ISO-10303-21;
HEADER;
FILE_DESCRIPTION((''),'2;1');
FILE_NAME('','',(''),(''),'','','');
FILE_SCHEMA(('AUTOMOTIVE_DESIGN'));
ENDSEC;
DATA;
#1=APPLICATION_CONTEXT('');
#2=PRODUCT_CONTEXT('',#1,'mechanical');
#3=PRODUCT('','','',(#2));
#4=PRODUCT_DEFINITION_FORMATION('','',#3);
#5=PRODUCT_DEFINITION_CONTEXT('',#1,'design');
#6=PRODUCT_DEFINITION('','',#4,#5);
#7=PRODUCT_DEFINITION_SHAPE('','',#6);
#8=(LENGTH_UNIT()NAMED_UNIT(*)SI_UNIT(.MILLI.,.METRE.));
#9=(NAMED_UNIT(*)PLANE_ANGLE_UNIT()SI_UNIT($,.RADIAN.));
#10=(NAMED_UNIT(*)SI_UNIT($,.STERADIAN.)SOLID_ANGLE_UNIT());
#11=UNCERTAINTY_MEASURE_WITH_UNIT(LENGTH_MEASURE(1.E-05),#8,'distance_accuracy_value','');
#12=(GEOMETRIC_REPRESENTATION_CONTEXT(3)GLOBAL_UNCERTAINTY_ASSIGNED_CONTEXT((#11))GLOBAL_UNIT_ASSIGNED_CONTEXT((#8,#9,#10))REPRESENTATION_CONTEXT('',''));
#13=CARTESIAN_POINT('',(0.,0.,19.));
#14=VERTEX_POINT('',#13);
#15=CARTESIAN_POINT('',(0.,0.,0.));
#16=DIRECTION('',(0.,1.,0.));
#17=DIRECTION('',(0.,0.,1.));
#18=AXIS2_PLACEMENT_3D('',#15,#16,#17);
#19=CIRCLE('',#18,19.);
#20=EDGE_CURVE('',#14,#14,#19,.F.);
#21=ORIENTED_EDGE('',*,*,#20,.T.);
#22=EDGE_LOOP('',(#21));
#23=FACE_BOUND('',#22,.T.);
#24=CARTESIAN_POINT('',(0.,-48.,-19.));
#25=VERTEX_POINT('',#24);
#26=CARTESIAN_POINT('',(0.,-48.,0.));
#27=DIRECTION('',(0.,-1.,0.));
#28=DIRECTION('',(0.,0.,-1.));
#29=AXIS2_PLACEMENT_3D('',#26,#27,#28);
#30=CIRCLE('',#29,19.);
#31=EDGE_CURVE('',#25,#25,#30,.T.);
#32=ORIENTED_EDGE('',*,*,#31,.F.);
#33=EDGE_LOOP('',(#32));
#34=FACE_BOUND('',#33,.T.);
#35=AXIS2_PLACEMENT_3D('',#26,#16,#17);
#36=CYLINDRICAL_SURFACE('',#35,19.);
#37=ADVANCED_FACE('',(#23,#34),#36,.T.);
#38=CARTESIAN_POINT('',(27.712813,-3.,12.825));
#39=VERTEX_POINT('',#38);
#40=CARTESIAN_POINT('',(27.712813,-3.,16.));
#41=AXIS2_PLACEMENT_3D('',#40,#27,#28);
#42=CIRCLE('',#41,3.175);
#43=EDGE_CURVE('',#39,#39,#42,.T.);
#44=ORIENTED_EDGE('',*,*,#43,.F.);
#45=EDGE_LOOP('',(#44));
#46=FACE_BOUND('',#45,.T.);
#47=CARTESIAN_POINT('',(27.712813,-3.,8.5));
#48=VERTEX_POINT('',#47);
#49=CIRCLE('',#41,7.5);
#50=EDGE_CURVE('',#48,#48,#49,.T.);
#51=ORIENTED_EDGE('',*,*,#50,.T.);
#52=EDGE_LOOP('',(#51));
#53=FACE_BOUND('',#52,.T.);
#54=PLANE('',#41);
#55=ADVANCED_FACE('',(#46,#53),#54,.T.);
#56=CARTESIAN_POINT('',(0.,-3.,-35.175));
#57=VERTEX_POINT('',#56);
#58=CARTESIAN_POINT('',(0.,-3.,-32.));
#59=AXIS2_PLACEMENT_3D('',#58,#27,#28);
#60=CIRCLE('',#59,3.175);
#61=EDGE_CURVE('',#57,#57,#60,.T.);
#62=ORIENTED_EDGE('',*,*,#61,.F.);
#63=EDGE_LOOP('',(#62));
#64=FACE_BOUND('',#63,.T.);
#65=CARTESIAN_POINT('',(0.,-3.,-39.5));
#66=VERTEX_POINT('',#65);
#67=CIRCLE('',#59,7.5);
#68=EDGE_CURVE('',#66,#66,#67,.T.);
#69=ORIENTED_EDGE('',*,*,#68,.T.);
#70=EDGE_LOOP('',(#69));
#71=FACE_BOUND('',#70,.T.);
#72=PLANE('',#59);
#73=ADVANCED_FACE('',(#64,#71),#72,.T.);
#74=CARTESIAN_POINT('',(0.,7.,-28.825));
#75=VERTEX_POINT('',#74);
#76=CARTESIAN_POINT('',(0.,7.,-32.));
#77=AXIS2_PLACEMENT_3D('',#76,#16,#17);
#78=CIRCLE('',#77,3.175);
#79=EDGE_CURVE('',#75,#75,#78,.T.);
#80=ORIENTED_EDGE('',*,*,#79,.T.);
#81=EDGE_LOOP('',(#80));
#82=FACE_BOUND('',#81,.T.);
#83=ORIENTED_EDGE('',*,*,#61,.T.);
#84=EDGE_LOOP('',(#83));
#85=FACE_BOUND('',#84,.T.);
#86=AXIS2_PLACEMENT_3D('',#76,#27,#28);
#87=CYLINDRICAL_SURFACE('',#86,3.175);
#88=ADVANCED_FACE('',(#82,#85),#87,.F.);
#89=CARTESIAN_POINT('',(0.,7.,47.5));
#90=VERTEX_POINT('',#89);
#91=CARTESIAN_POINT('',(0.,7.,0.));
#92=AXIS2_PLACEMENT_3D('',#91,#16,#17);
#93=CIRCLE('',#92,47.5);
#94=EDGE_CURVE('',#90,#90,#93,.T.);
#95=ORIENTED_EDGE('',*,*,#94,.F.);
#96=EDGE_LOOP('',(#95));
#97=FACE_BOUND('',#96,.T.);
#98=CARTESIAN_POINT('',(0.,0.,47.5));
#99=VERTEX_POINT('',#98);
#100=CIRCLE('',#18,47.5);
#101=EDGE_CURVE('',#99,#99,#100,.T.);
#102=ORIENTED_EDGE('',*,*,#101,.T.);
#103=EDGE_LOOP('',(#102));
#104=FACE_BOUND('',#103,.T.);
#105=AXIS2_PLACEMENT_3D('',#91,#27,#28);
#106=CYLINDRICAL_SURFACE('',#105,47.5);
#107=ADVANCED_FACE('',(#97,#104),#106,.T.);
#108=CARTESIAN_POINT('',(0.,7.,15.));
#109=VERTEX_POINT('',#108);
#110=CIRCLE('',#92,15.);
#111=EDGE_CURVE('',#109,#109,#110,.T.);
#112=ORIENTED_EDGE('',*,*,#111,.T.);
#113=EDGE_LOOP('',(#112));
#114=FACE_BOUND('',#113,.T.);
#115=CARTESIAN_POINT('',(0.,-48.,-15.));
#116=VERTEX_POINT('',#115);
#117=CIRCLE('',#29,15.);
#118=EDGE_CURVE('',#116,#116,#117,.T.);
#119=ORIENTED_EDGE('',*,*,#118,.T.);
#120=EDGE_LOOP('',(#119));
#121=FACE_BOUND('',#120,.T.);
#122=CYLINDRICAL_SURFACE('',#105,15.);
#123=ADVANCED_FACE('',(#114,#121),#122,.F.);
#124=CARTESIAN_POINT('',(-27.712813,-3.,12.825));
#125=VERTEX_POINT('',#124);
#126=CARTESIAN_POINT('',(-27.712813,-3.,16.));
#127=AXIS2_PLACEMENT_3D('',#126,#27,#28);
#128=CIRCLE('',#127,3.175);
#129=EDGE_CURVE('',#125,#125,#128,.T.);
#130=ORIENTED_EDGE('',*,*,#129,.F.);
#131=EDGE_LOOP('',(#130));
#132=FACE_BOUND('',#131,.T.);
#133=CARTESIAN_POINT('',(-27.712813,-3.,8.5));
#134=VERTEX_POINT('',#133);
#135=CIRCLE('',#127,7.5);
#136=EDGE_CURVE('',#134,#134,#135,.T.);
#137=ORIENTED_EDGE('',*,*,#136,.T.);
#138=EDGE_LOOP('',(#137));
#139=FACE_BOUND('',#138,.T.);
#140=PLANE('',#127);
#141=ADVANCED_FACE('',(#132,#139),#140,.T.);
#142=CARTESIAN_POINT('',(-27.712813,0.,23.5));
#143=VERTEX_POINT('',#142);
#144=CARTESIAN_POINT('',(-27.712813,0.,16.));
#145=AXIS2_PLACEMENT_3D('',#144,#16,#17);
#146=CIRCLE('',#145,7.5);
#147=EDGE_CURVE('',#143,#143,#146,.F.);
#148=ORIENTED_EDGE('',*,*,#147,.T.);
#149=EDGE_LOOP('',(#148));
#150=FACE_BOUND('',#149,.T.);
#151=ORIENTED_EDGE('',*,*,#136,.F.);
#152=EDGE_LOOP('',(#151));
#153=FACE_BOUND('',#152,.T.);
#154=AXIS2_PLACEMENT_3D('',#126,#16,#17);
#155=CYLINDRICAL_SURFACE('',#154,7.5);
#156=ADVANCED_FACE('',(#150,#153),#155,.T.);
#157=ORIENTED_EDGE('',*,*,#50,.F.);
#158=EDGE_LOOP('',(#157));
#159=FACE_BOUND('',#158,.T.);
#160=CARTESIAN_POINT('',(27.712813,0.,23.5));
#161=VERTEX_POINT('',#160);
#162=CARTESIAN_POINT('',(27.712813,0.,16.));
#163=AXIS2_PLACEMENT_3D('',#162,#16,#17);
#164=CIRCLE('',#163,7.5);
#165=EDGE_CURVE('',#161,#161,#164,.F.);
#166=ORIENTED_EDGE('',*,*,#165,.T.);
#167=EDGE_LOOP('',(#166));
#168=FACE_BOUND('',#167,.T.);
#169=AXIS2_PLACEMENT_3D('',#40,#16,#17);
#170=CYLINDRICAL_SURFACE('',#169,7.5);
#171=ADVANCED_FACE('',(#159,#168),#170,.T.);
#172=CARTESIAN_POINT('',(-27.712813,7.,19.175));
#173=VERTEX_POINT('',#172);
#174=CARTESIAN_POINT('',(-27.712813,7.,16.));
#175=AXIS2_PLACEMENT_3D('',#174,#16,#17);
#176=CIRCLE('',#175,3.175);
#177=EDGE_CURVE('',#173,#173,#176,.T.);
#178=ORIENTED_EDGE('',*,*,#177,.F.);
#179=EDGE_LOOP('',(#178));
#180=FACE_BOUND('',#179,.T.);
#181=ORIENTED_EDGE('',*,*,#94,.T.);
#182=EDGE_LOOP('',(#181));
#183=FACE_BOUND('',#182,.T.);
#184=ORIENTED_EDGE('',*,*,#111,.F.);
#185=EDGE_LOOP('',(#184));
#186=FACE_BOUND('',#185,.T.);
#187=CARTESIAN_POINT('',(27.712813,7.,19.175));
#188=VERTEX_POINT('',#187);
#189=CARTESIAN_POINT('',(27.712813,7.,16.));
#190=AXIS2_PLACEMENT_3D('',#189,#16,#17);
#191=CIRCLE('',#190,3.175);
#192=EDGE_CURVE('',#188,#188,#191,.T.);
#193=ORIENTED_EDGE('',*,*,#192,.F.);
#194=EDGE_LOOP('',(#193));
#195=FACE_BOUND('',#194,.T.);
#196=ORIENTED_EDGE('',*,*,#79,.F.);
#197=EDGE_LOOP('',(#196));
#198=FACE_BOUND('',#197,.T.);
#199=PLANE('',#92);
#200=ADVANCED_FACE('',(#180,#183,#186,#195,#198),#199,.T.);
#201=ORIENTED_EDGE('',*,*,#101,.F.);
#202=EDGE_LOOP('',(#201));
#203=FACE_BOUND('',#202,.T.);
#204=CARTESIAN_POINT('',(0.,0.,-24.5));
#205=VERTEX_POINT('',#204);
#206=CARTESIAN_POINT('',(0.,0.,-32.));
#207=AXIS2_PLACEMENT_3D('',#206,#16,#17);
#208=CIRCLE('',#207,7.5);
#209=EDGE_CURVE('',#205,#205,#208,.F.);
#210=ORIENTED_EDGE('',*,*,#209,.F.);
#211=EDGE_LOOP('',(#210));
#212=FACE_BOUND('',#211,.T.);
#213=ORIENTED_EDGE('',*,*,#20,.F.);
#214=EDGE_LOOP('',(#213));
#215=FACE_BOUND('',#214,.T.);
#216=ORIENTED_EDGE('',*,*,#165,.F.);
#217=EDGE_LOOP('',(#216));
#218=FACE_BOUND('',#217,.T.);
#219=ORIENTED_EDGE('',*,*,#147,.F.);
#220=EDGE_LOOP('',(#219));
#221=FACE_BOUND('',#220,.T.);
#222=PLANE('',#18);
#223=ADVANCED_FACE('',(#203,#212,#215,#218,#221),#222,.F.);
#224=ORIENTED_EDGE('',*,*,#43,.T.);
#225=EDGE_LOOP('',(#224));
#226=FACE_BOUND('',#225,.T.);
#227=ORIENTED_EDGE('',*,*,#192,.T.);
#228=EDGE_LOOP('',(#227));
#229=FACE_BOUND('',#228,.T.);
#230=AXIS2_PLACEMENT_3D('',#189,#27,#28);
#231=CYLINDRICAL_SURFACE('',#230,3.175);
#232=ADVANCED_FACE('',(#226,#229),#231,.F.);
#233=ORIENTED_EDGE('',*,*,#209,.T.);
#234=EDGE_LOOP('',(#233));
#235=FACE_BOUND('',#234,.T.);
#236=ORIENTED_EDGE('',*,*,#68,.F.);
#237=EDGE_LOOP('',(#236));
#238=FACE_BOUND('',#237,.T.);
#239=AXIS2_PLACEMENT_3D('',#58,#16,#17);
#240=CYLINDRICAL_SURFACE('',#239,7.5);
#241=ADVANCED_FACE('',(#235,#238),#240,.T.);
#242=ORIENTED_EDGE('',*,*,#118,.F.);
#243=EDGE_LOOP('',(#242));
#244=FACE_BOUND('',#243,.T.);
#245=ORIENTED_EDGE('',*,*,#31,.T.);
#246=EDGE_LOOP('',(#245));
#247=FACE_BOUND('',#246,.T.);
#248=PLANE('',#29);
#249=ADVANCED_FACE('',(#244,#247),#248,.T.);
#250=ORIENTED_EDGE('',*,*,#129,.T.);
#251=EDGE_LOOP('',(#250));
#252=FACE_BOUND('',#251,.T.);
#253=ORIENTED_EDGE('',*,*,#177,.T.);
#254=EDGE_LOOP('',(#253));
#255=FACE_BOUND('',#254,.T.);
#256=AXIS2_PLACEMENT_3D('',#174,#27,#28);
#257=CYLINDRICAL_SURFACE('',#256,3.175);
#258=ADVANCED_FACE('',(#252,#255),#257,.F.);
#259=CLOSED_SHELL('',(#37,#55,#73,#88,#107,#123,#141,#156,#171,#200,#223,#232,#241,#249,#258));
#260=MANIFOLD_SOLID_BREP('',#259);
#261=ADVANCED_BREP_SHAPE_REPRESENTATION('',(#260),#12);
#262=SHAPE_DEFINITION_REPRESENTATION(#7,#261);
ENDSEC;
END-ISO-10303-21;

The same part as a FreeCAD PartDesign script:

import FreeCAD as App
import Part
import Sketcher

V = App.Vector
Q = App.Units.Quantity

doc = App.newDocument("Part")
body = doc.addObject("PartDesign::Body", "Body")

# Sketch on XZ plane
sketch1 = body.newObject("Sketcher::SketchObject", "Sketch")
sketch1.AttachmentSupport = (doc.getObject("XZ_Plane"), [""])
sketch1.MapMode = "FlatFace"
sketch1.addGeometry(Part.Circle(V(0, 0, 0), V(0, 0, 1), 47.5), False)
sketch1.addGeometry(Part.Circle(V(0, -32, 0), V(0, 0, 1), 3.2), False)
sketch1.addGeometry(Part.Circle(V(-27.7, 16, 0), V(0, 0, 1), 3.2), False)
sketch1.addGeometry(Part.Circle(V(0, 0, 0), V(0, 0, 1), 15), False)
sketch1.addGeometry(Part.Circle(V(27.7, 16, 0), V(0, 0, 1), 3.2), False)
sketch1.addConstraint(Sketcher.Constraint("Coincident", 0, 3, -1, 1))
sketch1.addConstraint(Sketcher.Constraint("Coincident", 3, 3, -1, 1))
sketch1.addConstraint(Sketcher.Constraint("Equal", 1, 2))
sketch1.addConstraint(Sketcher.Constraint("Equal", 2, 4))
sketch1.addConstraint(Sketcher.Constraint("Symmetric", 2, 3, 4, 3, -2))
sketch1.addConstraint(Sketcher.Constraint("PointOnObject", 1, 3, -2))
sketch1.addConstraint(Sketcher.Constraint("Diameter", 0, Q("95 mm")))
sketch1.addConstraint(Sketcher.Constraint("Diameter", 3, Q("30 mm")))
sketch1.addConstraint(Sketcher.Constraint("Diameter", 1, Q("6.35 mm")))
sketch1.addConstraint(Sketcher.Constraint("DistanceY", 1, 3, -1, 1, Q("32 mm")))
sketch1.addConstraint(Sketcher.Constraint("DistanceY", -1, 1, 2, 3, Q("16 mm")))
sketch1.addConstraint(Sketcher.Constraint("DistanceX", 2, 3, -1, 1, Q("27.712813 mm")))
pad1 = body.newObject("PartDesign::Pad", "Pad")
pad1.Profile = sketch1
pad1.Length = 7
pad1.Reversed = True

# Sketch on XZ plane
sketch2 = body.newObject("Sketcher::SketchObject", "Sketch001")
sketch2.AttachmentSupport = (doc.getObject("XZ_Plane"), [""])
sketch2.MapMode = "FlatFace"
sketch2.AttachmentOffset = App.Placement(V(0, 0, 48), App.Rotation())
sketch2.addGeometry(Part.Circle(V(0, 0, 0), V(0, 0, 1), 19), False)
sketch2.addGeometry(Part.Circle(V(0, 0, 0), V(0, 0, 1), 15), False)
sketch2.addConstraint(Sketcher.Constraint("Coincident", 0, 3, -1, 1))
sketch2.addConstraint(Sketcher.Constraint("Coincident", 1, 3, -1, 1))
sketch2.addConstraint(Sketcher.Constraint("Diameter", 0, Q("38 mm")))
sketch2.addConstraint(Sketcher.Constraint("Diameter", 1, Q("30 mm")))
pad2 = body.newObject("PartDesign::Pad", "Pad001")
pad2.Profile = sketch2
pad2.Length = 48
pad2.Reversed = True

# Sketch on XZ plane
sketch3 = body.newObject("Sketcher::SketchObject", "Sketch002")
sketch3.AttachmentSupport = (doc.getObject("XZ_Plane"), [""])
sketch3.MapMode = "FlatFace"
sketch3.AttachmentOffset = App.Placement(V(0, 0, 3), App.Rotation())
sketch3.addGeometry(Part.Circle(V(-27.7, 16, 0), V(0, 0, 1), 7.5), False)
sketch3.addGeometry(Part.Circle(V(-27.7, 16, 0), V(0, 0, 1), 3.2), False)
sketch3.addGeometry(Part.Circle(V(27.7, 16, 0), V(0, 0, 1), 7.5), False)
sketch3.addGeometry(Part.Circle(V(27.7, 16, 0), V(0, 0, 1), 3.2), False)
sketch3.addGeometry(Part.Circle(V(0, -32, 0), V(0, 0, 1), 7.5), False)
sketch3.addGeometry(Part.Circle(V(0, -32, 0), V(0, 0, 1), 3.2), False)
sketch3.addConstraint(Sketcher.Constraint("Coincident", 1, 3, 0, 3))
sketch3.addConstraint(Sketcher.Constraint("Coincident", 3, 3, 2, 3))
sketch3.addConstraint(Sketcher.Constraint("Coincident", 5, 3, 4, 3))
sketch3.addConstraint(Sketcher.Constraint("Equal", 0, 2))
sketch3.addConstraint(Sketcher.Constraint("Equal", 1, 3))
sketch3.addConstraint(Sketcher.Constraint("Equal", 2, 4))
sketch3.addConstraint(Sketcher.Constraint("Equal", 3, 5))
sketch3.addConstraint(Sketcher.Constraint("Symmetric", 0, 3, 2, 3, -2))
sketch3.addConstraint(Sketcher.Constraint("PointOnObject", 4, 3, -2))
sketch3.addConstraint(Sketcher.Constraint("Diameter", 0, Q("15 mm")))
sketch3.addConstraint(Sketcher.Constraint("Diameter", 1, Q("6.35 mm")))
sketch3.addConstraint(Sketcher.Constraint("DistanceY", -1, 1, 0, 3, Q("16 mm")))
sketch3.addConstraint(Sketcher.Constraint("DistanceY", 4, 3, -1, 1, Q("32 mm")))
sketch3.addConstraint(Sketcher.Constraint("DistanceX", 0, 3, -1, 1, Q("27.712813 mm")))
pad3 = body.newObject("PartDesign::Pad", "Pad002")
pad3.Profile = sketch3
pad3.Length = 3
pad3.Reversed = True

doc.recompute()
